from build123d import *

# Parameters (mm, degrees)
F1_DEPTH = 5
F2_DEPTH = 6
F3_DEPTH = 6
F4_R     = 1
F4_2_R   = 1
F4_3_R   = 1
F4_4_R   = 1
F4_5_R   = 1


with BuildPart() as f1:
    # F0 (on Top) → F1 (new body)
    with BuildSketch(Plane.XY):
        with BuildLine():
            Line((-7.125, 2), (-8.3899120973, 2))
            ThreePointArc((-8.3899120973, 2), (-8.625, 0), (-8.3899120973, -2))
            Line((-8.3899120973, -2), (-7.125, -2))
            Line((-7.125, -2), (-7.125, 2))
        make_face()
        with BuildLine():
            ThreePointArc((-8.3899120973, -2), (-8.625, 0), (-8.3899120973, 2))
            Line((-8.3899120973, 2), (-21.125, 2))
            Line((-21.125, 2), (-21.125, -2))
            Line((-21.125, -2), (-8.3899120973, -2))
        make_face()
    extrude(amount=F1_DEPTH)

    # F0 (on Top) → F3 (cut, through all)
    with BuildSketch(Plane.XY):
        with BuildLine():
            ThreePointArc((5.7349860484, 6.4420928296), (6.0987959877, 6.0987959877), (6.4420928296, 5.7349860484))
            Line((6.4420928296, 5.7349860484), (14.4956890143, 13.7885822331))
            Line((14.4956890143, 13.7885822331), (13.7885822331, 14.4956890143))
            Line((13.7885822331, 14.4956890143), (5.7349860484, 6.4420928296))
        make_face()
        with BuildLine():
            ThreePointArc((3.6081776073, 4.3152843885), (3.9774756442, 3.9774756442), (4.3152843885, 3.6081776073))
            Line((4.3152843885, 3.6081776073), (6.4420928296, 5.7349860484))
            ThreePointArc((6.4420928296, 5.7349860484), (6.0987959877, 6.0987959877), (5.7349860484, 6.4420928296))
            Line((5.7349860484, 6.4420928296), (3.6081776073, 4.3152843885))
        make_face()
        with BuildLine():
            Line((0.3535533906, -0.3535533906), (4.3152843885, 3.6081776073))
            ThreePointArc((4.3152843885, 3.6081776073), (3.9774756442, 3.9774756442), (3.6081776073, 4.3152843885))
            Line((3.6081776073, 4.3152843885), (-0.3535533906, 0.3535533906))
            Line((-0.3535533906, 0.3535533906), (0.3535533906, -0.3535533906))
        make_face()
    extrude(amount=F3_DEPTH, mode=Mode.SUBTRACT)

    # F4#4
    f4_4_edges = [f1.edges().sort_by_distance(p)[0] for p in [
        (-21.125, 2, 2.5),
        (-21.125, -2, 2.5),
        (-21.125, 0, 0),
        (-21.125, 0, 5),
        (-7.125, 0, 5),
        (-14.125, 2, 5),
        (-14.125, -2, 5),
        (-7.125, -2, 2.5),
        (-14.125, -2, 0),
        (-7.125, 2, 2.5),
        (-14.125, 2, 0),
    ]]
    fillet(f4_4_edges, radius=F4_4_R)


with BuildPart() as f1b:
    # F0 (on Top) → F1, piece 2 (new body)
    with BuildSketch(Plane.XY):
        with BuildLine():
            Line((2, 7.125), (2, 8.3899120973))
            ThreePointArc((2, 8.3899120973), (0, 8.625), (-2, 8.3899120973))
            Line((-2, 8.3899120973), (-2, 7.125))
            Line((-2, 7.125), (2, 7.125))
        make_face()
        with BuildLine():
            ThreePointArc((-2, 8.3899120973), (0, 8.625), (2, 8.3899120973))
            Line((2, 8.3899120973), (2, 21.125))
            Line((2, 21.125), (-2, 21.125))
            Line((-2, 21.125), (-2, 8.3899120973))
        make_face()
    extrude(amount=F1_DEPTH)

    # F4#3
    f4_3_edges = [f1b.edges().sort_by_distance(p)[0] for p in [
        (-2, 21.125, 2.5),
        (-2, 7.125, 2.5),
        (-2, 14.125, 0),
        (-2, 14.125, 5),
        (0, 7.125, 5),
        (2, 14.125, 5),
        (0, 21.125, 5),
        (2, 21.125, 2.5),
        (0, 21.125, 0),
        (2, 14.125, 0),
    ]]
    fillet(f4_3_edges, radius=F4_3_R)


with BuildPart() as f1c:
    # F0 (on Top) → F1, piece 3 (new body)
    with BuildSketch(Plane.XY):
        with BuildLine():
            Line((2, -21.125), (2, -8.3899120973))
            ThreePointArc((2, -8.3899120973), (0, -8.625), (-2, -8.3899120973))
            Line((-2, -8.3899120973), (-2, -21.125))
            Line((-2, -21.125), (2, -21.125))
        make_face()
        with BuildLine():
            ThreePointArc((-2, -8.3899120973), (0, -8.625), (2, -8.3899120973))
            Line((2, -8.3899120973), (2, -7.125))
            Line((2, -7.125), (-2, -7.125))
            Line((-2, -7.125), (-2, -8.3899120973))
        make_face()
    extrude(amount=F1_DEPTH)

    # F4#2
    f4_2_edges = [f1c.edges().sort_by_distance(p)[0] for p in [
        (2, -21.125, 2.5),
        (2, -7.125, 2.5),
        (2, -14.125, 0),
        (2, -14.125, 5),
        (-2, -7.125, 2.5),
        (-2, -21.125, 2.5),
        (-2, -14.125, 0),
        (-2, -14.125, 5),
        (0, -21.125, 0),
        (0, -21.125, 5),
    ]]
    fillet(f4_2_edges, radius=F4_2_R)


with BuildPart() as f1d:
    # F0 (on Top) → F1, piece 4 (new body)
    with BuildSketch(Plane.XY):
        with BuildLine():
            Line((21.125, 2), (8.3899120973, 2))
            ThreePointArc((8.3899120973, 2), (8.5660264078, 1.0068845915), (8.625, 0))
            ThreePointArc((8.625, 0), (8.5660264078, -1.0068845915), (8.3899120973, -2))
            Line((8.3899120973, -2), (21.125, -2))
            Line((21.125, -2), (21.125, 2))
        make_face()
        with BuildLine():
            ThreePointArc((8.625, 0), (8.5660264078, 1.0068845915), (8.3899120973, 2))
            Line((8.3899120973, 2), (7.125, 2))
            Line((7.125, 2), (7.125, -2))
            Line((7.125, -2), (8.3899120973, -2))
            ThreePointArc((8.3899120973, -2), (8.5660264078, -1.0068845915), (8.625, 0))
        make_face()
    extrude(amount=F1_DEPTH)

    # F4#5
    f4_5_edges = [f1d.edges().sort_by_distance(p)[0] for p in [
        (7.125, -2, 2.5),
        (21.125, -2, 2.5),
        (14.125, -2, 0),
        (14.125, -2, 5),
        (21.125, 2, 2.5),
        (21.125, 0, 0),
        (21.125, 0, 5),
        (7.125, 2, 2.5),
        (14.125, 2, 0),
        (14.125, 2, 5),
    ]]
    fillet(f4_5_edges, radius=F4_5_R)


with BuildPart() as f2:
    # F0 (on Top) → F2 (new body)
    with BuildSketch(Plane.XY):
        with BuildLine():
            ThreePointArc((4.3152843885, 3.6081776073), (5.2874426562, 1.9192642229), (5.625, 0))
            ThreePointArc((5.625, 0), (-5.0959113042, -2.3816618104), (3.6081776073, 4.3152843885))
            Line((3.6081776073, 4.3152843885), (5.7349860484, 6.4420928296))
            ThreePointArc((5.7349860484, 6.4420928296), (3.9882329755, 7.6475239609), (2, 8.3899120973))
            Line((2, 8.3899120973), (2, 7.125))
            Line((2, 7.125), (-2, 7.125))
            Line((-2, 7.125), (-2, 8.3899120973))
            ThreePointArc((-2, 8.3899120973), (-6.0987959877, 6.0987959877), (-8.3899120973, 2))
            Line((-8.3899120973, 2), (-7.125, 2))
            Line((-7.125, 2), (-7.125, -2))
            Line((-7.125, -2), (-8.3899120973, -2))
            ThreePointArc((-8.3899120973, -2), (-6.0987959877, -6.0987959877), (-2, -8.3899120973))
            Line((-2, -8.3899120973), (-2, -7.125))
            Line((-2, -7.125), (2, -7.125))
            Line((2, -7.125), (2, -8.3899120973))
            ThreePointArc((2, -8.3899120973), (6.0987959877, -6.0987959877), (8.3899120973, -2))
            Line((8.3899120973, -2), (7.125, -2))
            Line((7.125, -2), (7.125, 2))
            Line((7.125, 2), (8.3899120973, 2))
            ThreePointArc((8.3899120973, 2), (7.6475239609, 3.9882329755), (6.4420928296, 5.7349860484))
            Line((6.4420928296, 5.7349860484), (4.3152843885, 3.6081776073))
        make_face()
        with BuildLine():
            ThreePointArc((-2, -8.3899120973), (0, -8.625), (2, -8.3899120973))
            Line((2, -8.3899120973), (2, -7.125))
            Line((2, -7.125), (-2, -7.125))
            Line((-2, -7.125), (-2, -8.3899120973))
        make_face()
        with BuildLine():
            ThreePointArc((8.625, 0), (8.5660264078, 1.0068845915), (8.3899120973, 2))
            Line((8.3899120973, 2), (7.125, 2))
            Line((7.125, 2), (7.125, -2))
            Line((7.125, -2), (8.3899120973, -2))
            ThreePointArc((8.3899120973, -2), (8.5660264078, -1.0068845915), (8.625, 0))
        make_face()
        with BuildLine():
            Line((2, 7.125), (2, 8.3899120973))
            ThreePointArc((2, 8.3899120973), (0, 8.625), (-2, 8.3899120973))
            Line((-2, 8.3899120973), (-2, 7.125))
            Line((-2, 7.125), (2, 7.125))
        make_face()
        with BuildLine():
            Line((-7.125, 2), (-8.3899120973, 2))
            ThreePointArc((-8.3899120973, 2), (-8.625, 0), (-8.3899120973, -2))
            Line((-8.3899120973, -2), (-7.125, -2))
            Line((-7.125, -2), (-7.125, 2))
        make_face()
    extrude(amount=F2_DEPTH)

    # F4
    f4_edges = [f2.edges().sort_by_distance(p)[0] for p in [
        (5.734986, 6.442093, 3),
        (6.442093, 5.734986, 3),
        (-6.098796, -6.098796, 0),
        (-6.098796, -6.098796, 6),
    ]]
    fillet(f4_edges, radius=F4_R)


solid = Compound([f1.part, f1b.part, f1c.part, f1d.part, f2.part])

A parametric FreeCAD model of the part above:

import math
import FreeCAD as App
import Part
import Sketcher
Q = App.Units.Quantity


def edges_at(feature, points):
    """Names of the edges that pass closest to the given points."""
    edges = feature.Shape.Edges
    near = lambda p: min(range(len(edges)), key=lambda i: edges[i].distToShape(Part.Vertex(*p))[0])
    return sorted({f"Edge{near(p) + 1}" for p in points})


def add_polygon(sketch, points):
    """Adds a closed chain of lines whose ends are joined by coincident constraints."""
    first, n = sketch.GeometryCount, len(points)
    for a, b in zip(points, points[1:] + points[:1]):
        sketch.addGeometry(Part.LineSegment(App.Vector(*a, 0), App.Vector(*b, 0)), False)
    for i in range(n):
        sketch.addConstraint(Sketcher.Constraint("Coincident", first + i, 2, first + (i + 1) % n, 1))

doc = App.newDocument("Part")
body = doc.addObject("PartDesign::Body", "Body")

# Sketch on XY plane
sketch1 = doc.addObject("Sketcher::SketchObject", "Sketch")
body.addObject(sketch1)
sketch1.AttachmentSupport = (doc.XY_Plane, [""])
sketch1.MapMode = "FlatFace"
add_polygon(sketch1, [(-7.1, 2), (-21.1, 2), (-21.1, -2), (-7.1, -2)])  # lines 0-3
sketch1.addConstraint(Sketcher.Constraint("Horizontal", 0))
sketch1.addConstraint(Sketcher.Constraint("Vertical", 1))
sketch1.addConstraint(Sketcher.Constraint("Horizontal", 2))
sketch1.addConstraint(Sketcher.Constraint("Vertical", 3))
sketch1.addConstraint(Sketcher.Constraint("DistanceX", 0, 2, 0, 1, 14.0))
sketch1.addConstraint(Sketcher.Constraint("DistanceY", 1, 2, 1, 1, 4.0))
sketch1.addConstraint(Sketcher.Constraint("DistanceY", -1, 1, 0, 2, 2.0))
sketch1.addConstraint(Sketcher.Constraint("DistanceX", 0, 2, -1, 1, 21.125))
pad1 = doc.addObject("PartDesign::Pad", "Pad")
body.addObject(pad1)
pad1.Profile = sketch1
pad1.Length = 5

# Sketch on XY plane
sketch2 = doc.addObject("Sketcher::SketchObject", "Sketch001")
body.addObject(sketch2)
sketch2.AttachmentSupport = (doc.XY_Plane, [""])
sketch2.MapMode = "FlatFace"
add_polygon(sketch2, [(14.5, 13.8), (13.8, 14.5), (-0.4, 0.4), (0.4, -0.4)])  # lines 0-3
sketch2.addConstraint(Sketcher.Constraint("Symmetric", 1, 2, 2, 2, -1, 1))
sketch2.addConstraint(Sketcher.Constraint("Perpendicular", 0, 1))
sketch2.addConstraint(Sketcher.Constraint("Perpendicular", 1, 2))
sketch2.addConstraint(Sketcher.Constraint("Perpendicular", 2, 3))
sketch2.addConstraint(Sketcher.Constraint("Angle", 0, Q("135 deg")))
sketch2.addConstraint(Sketcher.Constraint("Distance", 0, 1.0))
sketch2.addConstraint(Sketcher.Constraint("Distance", 1, 20.0))
pocket1 = doc.addObject("PartDesign::Pocket", "Pocket")
body.addObject(pocket1)
pocket1.Profile = sketch2
pocket1.Type = "ThroughAll"
pocket1.Reversed = True
doc.recompute()

fillet = doc.addObject("PartDesign::Fillet", "Fillet")
body.addObject(fillet)
fillet.Base = (pocket1, edges_at(pocket1, [
    (-21.125, 2, 2.5),
    (-21.125, -2, 2.5),
    (-21.125, 0, 0),
    (-21.125, 0, 5),
    (-7.125, 0, 5),
    (-14.125, 2, 5),
    (-14.125, -2, 5),
    (-7.125, -2, 2.5),
    (-14.125, -2, 0),
    (-7.125, 2, 2.5),
    (-14.125, 2, 0),
]))
fillet.Radius = 1
body2 = doc.addObject("PartDesign::Body", "Body001")

# Sketch on XY plane
sketch3 = doc.addObject("Sketcher::SketchObject", "Sketch002")
body2.addObject(sketch3)
sketch3.AttachmentSupport = (doc.getObject("XY_Plane001"), [""])
sketch3.MapMode = "FlatFace"
add_polygon(sketch3, [(2, 7.1), (2, 21.1), (-2, 21.1), (-2, 7.1)])  # lines 0-3
sketch3.addConstraint(Sketcher.Constraint("Vertical", 0))
sketch3.addConstraint(Sketcher.Constraint("Horizontal", 1))
sketch3.addConstraint(Sketcher.Constraint("Vertical", 2))
sketch3.addConstraint(Sketcher.Constraint("Horizontal", 3))
sketch3.addConstraint(Sketcher.Constraint("DistanceX", 1, 2, 1, 1, 4.0))
sketch3.addConstraint(Sketcher.Constraint("DistanceY", 0, 1, 0, 2, 14.0))
sketch3.addConstraint(Sketcher.Constraint("DistanceX", -1, 1, 0, 2, 2.0))
sketch3.addConstraint(Sketcher.Constraint("DistanceY", -1, 1, 0, 2, 21.125))
pad2 = doc.addObject("PartDesign::Pad", "Pad001")
body2.addObject(pad2)
pad2.Profile = sketch3
pad2.Length = 5
doc.recompute()

fillet2 = doc.addObject("PartDesign::Fillet", "Fillet001")
body2.addObject(fillet2)
fillet2.Base = (pad2, edges_at(pad2, [
    (-2, 21.125, 2.5),
    (-2, 7.125, 2.5),
    (-2, 14.125, 0),
    (-2, 14.125, 5),
    (0, 7.125, 5),
    (2, 14.125, 5),
    (0, 21.125, 5),
    (2, 21.125, 2.5),
    (0, 21.125, 0),
    (2, 14.125, 0),
]))
fillet2.Radius = 1
body3 = doc.addObject("PartDesign::Body", "Body002")

# Sketch on XY plane
sketch4 = doc.addObject("Sketcher::SketchObject", "Sketch003")
body3.addObject(sketch4)
sketch4.AttachmentSupport = (doc.getObject("XY_Plane002"), [""])
sketch4.MapMode = "FlatFace"
add_polygon(sketch4, [(2, -21.1), (2, -7.1), (-2, -7.1), (-2, -21.1)])  # lines 0-3
sketch4.addConstraint(Sketcher.Constraint("Vertical", 0))
sketch4.addConstraint(Sketcher.Constraint("Horizontal", 1))
sketch4.addConstraint(Sketcher.Constraint("Vertical", 2))
sketch4.addConstraint(Sketcher.Constraint("Horizontal", 3))
sketch4.addConstraint(Sketcher.Constraint("DistanceX", 1, 2, 1, 1, 4.0))
sketch4.addConstraint(Sketcher.Constraint("DistanceY", 0, 1, 0, 2, 14.0))
sketch4.addConstraint(Sketcher.Constraint("DistanceX", -1, 1, 0, 2, 2.0))
sketch4.addConstraint(Sketcher.Constraint("DistanceY", 0, 2, -1, 1, 7.125))
pad3 = doc.addObject("PartDesign::Pad", "Pad002")
body3.addObject(pad3)
pad3.Profile = sketch4
pad3.Length = 5
doc.recompute()

fillet3 = doc.addObject("PartDesign::Fillet", "Fillet002")
body3.addObject(fillet3)
fillet3.Base = (pad3, edges_at(pad3, [
    (2, -21.125, 2.5),
    (2, -7.125, 2.5),
    (2, -14.125, 0),
    (2, -14.125, 5),
    (-2, -7.125, 2.5),
    (-2, -21.125, 2.5),
    (-2, -14.125, 0),
    (-2, -14.125, 5),
    (0, -21.125, 0),
    (0, -21.125, 5),
]))
fillet3.Radius = 1
body4 = doc.addObject("PartDesign::Body", "Body003")

# Sketch on XY plane
sketch5 = doc.addObject("Sketcher::SketchObject", "Sketch004")
body4.addObject(sketch5)
sketch5.AttachmentSupport = (doc.getObject("XY_Plane003"), [""])
sketch5.MapMode = "FlatFace"
add_polygon(sketch5, [(21.1, 2), (7.1, 2), (7.1, -2), (21.1, -2)])  # lines 0-3
sketch5.addConstraint(Sketcher.Constraint("Horizontal", 0))
sketch5.addConstraint(Sketcher.Constraint("Vertical", 1))
sketch5.addConstraint(Sketcher.Constraint("Horizontal", 2))
sketch5.addConstraint(Sketcher.Constraint("Vertical", 3))
sketch5.addConstraint(Sketcher.Constraint("DistanceX", 0, 2, 0, 1, 14.0))
sketch5.addConstraint(Sketcher.Constraint("DistanceY", 1, 2, 1, 1, 4.0))
sketch5.addConstraint(Sketcher.Constraint("DistanceY", -1, 1, 0, 2, 2.0))
sketch5.addConstraint(Sketcher.Constraint("DistanceX", -1, 1, 0, 2, 7.125))
pad4 = doc.addObject("PartDesign::Pad", "Pad003")
body4.addObject(pad4)
pad4.Profile = sketch5
pad4.Length = 5
doc.recompute()

fillet4 = doc.addObject("PartDesign::Fillet", "Fillet003")
body4.addObject(fillet4)
fillet4.Base = (pad4, edges_at(pad4, [
    (7.125, -2, 2.5),
    (21.125, -2, 2.5),
    (14.125, -2, 0),
    (14.125, -2, 5),
    (21.125, 2, 2.5),
    (21.125, 0, 0),
    (21.125, 0, 5),
    (7.125, 2, 2.5),
    (14.125, 2, 0),
    (14.125, 2, 5),
]))
fillet4.Radius = 1
body5 = doc.addObject("PartDesign::Body", "Body004")

# Sketch on XY plane
sketch6 = doc.addObject("Sketcher::SketchObject", "Sketch005")
body5.addObject(sketch6)
sketch6.AttachmentSupport = (doc.getObject("XY_Plane004"), [""])
sketch6.MapMode = "FlatFace"
sketch6.addGeometry(Part.ArcOfCircle(Part.Circle(App.Vector(0, 0, 0), App.Vector(0, 0, 1), 5.6), math.radians(0), math.radians(40)), False)
sketch6.addGeometry(Part.ArcOfCircle(Part.Circle(App.Vector(0, 0, 0), App.Vector(0, 0, 1), 5.6), math.radians(50), math.radians(360)), False)
sketch6.addGeometry(Part.LineSegment(App.Vector(3.6, 4.3, 0), App.Vector(5.7, 6.4, 0)), False)
sketch6.addGeometry(Part.ArcOfCircle(Part.Circle(App.Vector(0, 0, 0), App.Vector(0, 0, 1), 8.6), math.radians(48), math.radians(77)), False)
sketch6.addGeometry(Part.ArcOfCircle(Part.Circle(App.Vector(0, 0, 0), App.Vector(0, 0, 1), 8.6), math.radians(77), math.radians(103)), False)
sketch6.addGeometry(Part.ArcOfCircle(Part.Circle(App.Vector(0, 0, 0), App.Vector(0, 0, 1), 8.6), math.radians(103), math.radians(167)), False)
sketch6.addGeometry(Part.ArcOfCircle(Part.Circle(App.Vector(0, 0, 0), App.Vector(0, 0, 1), 8.6), math.radians(167), math.radians(193)), False)
sketch6.addGeometry(Part.ArcOfCircle(Part.Circle(App.Vector(0, 0, 0), App.Vector(0, 0, 1), 8.6), math.radians(-167), math.radians(-103)), False)
sketch6.addGeometry(Part.ArcOfCircle(Part.Circle(App.Vector(0, 0, 0), App.Vector(0, 0, 1), 8.6), math.radians(-103), math.radians(-77)), False)
sketch6.addGeometry(Part.ArcOfCircle(Part.Circle(App.Vector(0, 0, 0), App.Vector(0, 0, 1), 8.6), math.radians(-77), math.radians(-13)), False)
sketch6.addGeometry(Part.ArcOfCircle(Part.Circle(App.Vector(0, 0, 0), App.Vector(0, 0, 1), 8.6), math.radians(-13.41), math.radians(0)), False)
sketch6.addGeometry(Part.ArcOfCircle(Part.Circle(App.Vector(0, 0, 0), App.Vector(0, 0, 1), 8.6), math.radians(0), math.radians(13.41)), False)
sketch6.addGeometry(Part.ArcOfCircle(Part.Circle(App.Vector(0, 0, 0), App.Vector(0, 0, 1), 8.6), math.radians(13), math.radians(42)), False)
sketch6.addGeometry(Part.LineSegment(App.Vector(6.4, 5.7, 0), App.Vector(4.3, 3.6, 0)), False)
sketch6.addConstraint(Sketcher.Constraint("Tangent", 0, 1, 1, 2))
sketch6.addConstraint(Sketcher.Constraint("Coincident", 1, 1, 2, 1))
sketch6.addConstraint(Sketcher.Constraint("Coincident", 2, 2, 3, 1))
sketch6.addConstraint(Sketcher.Constraint("Tangent", 3, 2, 4, 1))
sketch6.addConstraint(Sketcher.Constraint("Tangent", 4, 2, 5, 1))
sketch6.addConstraint(Sketcher.Constraint("Tangent", 5, 2, 6, 1))
sketch6.addConstraint(Sketcher.Constraint("Tangent", 6, 2, 7, 1))
sketch6.addConstraint(Sketcher.Constraint("Tangent", 7, 2, 8, 1))
sketch6.addConstraint(Sketcher.Constraint("Tangent", 8, 2, 9, 1))
sketch6.addConstraint(Sketcher.Constraint("Tangent", 9, 2, 10, 1))
sketch6.addConstraint(Sketcher.Constraint("Tangent", 10, 2, 11, 1))
sketch6.addConstraint(Sketcher.Constraint("Tangent", 11, 2, 12, 1))
sketch6.addConstraint(Sketcher.Constraint("Coincident", 12, 2, 13, 1))
sketch6.addConstraint(Sketcher.Constraint("Coincident", 13, 2, 0, 2))
sketch6.addConstraint(Sketcher.Constraint("Coincident", 0, 3, -1, 1))
sketch6.addConstraint(Sketcher.Constraint("Coincident", 3, 3, -1, 1))
sketch6.addConstraint(Sketcher.Constraint("Coincident", 5, 3, -1, 1))
sketch6.addConstraint(Sketcher.Constraint("Coincident", 7, 3, -1, 1))
sketch6.addConstraint(Sketcher.Constraint("Coincident", 9, 3, -1, 1))
sketch6.addConstraint(Sketcher.Constraint("Coincident", 11, 3, -1, 1))
sketch6.addConstraint(Sketcher.Constraint("Equal", 0, 1))
sketch6.addConstraint(Sketcher.Constraint("Equal", 11, 12))
sketch6.addConstraint(Sketcher.Constraint("PointOnObject", 0, 1, -1))
sketch6.addConstraint(Sketcher.Constraint("PointOnObject", 10, 2, -1))
sketch6.addConstraint(Sketcher.Constraint("Parallel", 2, 13))
sketch6.addConstraint(Sketcher.Constraint("Horizontal", 3, 2, 4, 2))
sketch6.addConstraint(Sketcher.Constraint("Horizontal", 7, 2, 8, 2))
sketch6.addConstraint(Sketcher.Constraint("Horizontal", 6, 2, 9, 2))
sketch6.addConstraint(Sketcher.Constraint("Horizontal", 5, 2, 11, 2))
sketch6.addConstraint(Sketcher.Constraint("Vertical", 5, 2, 6, 2))
sketch6.addConstraint(Sketcher.Constraint("Vertical", 4, 2, 7, 2))
sketch6.addConstraint(Sketcher.Constraint("Equal", 2, 13))
sketch6.addConstraint(Sketcher.Constraint("Angle", 2, Q("45 deg")))
sketch6.addConstraint(Sketcher.Constraint("DistanceX", -1, 1, 3, 2, 2.0))
sketch6.addConstraint(Sketcher.Constraint("DistanceY", -1, 1, 5, 2, 2.0))
sketch6.addConstraint(Sketcher.Constraint("Radius", 0, 5.625))
sketch6.addConstraint(Sketcher.Constraint("Radius", 3, 8.625))
sketch6.addConstraint(Sketcher.Constraint("DistanceY", 1, 1, 12, 2, 1.419702))
pad5 = doc.addObject("PartDesign::Pad", "Pad004")
body5.addObject(pad5)
pad5.Profile = sketch6
pad5.Length = 6
doc.recompute()

fillet5 = doc.addObject("PartDesign::Fillet", "Fillet004")
body5.addObject(fillet5)
fillet5.Base = (pad5, edges_at(pad5, [
    (5.735, 6.442, 3),
    (6.442, 5.735, 3),
    (-6.099, -6.099, 0),
    (-6.099, -6.099, 6),
]))
fillet5.Radius = 1

doc.recompute()
